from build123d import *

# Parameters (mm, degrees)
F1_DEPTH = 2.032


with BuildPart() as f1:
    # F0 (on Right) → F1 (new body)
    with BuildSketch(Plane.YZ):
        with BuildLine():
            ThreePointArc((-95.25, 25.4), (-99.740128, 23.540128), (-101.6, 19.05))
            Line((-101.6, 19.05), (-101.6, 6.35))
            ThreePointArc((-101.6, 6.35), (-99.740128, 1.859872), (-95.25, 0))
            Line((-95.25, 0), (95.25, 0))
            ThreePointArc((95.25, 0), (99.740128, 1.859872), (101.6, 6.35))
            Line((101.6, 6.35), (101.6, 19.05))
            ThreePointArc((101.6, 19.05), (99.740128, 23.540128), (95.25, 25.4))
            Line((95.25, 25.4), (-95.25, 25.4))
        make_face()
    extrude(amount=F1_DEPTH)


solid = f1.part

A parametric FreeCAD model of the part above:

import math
import FreeCAD as App
import Part
import Sketcher
Q = App.Units.Quantity

doc = App.newDocument("Part")
body = doc.addObject("PartDesign::Body", "Body")

# Sketch on YZ plane
sketch1 = body.newObject("Sketcher::SketchObject", "Sketch")
sketch1.AttachmentSupport = (doc.getObject("YZ_Plane"), [""])
sketch1.MapMode = "FlatFace"
sketch1.addGeometry(Part.ArcOfCircle(Part.Circle(App.Vector(-95, 19, 0), App.Vector(0, 0, 1), 6), math.radians(90), math.radians(180)), False)
sketch1.addGeometry(Part.LineSegment(App.Vector(-102, 19, 0), App.Vector(-102, 6, 0)), False)
sketch1.addGeometry(Part.ArcOfCircle(Part.Circle(App.Vector(-95, 6, 0), App.Vector(0, 0, 1), 6), math.radians(-180), math.radians(-90)), False)
sketch1.addGeometry(Part.LineSegment(App.Vector(-95, 0, 0), App.Vector(95, 0, 0)), False)
sketch1.addGeometry(Part.ArcOfCircle(Part.Circle(App.Vector(95, 6, 0), App.Vector(0, 0, 1), 6), math.radians(-90), math.radians(0)), False)
sketch1.addGeometry(Part.LineSegment(App.Vector(102, 6, 0), App.Vector(102, 19, 0)), False)
sketch1.addGeometry(Part.ArcOfCircle(Part.Circle(App.Vector(95, 19, 0), App.Vector(0, 0, 1), 6), math.radians(0), math.radians(90)), False)
sketch1.addGeometry(Part.LineSegment(App.Vector(95, 25, 0), App.Vector(-95, 25, 0)), False)
sketch1.addConstraint(Sketcher.Constraint("Tangent", 0, 2, 1, 1))
sketch1.addConstraint(Sketcher.Constraint("Tangent", 1, 2, 2, 1))
sketch1.addConstraint(Sketcher.Constraint("Tangent", 2, 2, 3, 1))
sketch1.addConstraint(Sketcher.Constraint("Tangent", 3, 2, 4, 1))
sketch1.addConstraint(Sketcher.Constraint("Tangent", 4, 2, 5, 1))
sketch1.addConstraint(Sketcher.Constraint("Tangent", 5, 2, 6, 1))
sketch1.addConstraint(Sketcher.Constraint("Tangent", 6, 2, 7, 1))
sketch1.addConstraint(Sketcher.Constraint("Tangent", 7, 2, 0, 1))
sketch1.addConstraint(Sketcher.Constraint("Vertical", 1))
sketch1.addConstraint(Sketcher.Constraint("Horizontal", 3))
sketch1.addConstraint(Sketcher.Constraint("Vertical", 5))
sketch1.addConstraint(Sketcher.Constraint("Horizontal", 7))
sketch1.addConstraint(Sketcher.Constraint("Equal", 0, 2))
sketch1.addConstraint(Sketcher.Constraint("Equal", 2, 4))
sketch1.addConstraint(Sketcher.Constraint("Equal", 4, 6))
sketch1.addConstraint(Sketcher.Constraint("Symmetric", 2, 2, 3, 2, -1, 1))
sketch1.addConstraint(Sketcher.Constraint("Radius", 0, Q("0.25 in")))
sketch1.addConstraint(Sketcher.Constraint("DistanceX", 3, 1, 3, 2, Q("7.5 in")))
sketch1.addConstraint(Sketcher.Constraint("DistanceY", 1, 2, 1, 1, Q("0.5 in")))
pad1 = body.newObject("PartDesign::Pad", "Pad")
pad1.Profile = sketch1
pad1.Length = Q("0.08 in")

doc.recompute()
